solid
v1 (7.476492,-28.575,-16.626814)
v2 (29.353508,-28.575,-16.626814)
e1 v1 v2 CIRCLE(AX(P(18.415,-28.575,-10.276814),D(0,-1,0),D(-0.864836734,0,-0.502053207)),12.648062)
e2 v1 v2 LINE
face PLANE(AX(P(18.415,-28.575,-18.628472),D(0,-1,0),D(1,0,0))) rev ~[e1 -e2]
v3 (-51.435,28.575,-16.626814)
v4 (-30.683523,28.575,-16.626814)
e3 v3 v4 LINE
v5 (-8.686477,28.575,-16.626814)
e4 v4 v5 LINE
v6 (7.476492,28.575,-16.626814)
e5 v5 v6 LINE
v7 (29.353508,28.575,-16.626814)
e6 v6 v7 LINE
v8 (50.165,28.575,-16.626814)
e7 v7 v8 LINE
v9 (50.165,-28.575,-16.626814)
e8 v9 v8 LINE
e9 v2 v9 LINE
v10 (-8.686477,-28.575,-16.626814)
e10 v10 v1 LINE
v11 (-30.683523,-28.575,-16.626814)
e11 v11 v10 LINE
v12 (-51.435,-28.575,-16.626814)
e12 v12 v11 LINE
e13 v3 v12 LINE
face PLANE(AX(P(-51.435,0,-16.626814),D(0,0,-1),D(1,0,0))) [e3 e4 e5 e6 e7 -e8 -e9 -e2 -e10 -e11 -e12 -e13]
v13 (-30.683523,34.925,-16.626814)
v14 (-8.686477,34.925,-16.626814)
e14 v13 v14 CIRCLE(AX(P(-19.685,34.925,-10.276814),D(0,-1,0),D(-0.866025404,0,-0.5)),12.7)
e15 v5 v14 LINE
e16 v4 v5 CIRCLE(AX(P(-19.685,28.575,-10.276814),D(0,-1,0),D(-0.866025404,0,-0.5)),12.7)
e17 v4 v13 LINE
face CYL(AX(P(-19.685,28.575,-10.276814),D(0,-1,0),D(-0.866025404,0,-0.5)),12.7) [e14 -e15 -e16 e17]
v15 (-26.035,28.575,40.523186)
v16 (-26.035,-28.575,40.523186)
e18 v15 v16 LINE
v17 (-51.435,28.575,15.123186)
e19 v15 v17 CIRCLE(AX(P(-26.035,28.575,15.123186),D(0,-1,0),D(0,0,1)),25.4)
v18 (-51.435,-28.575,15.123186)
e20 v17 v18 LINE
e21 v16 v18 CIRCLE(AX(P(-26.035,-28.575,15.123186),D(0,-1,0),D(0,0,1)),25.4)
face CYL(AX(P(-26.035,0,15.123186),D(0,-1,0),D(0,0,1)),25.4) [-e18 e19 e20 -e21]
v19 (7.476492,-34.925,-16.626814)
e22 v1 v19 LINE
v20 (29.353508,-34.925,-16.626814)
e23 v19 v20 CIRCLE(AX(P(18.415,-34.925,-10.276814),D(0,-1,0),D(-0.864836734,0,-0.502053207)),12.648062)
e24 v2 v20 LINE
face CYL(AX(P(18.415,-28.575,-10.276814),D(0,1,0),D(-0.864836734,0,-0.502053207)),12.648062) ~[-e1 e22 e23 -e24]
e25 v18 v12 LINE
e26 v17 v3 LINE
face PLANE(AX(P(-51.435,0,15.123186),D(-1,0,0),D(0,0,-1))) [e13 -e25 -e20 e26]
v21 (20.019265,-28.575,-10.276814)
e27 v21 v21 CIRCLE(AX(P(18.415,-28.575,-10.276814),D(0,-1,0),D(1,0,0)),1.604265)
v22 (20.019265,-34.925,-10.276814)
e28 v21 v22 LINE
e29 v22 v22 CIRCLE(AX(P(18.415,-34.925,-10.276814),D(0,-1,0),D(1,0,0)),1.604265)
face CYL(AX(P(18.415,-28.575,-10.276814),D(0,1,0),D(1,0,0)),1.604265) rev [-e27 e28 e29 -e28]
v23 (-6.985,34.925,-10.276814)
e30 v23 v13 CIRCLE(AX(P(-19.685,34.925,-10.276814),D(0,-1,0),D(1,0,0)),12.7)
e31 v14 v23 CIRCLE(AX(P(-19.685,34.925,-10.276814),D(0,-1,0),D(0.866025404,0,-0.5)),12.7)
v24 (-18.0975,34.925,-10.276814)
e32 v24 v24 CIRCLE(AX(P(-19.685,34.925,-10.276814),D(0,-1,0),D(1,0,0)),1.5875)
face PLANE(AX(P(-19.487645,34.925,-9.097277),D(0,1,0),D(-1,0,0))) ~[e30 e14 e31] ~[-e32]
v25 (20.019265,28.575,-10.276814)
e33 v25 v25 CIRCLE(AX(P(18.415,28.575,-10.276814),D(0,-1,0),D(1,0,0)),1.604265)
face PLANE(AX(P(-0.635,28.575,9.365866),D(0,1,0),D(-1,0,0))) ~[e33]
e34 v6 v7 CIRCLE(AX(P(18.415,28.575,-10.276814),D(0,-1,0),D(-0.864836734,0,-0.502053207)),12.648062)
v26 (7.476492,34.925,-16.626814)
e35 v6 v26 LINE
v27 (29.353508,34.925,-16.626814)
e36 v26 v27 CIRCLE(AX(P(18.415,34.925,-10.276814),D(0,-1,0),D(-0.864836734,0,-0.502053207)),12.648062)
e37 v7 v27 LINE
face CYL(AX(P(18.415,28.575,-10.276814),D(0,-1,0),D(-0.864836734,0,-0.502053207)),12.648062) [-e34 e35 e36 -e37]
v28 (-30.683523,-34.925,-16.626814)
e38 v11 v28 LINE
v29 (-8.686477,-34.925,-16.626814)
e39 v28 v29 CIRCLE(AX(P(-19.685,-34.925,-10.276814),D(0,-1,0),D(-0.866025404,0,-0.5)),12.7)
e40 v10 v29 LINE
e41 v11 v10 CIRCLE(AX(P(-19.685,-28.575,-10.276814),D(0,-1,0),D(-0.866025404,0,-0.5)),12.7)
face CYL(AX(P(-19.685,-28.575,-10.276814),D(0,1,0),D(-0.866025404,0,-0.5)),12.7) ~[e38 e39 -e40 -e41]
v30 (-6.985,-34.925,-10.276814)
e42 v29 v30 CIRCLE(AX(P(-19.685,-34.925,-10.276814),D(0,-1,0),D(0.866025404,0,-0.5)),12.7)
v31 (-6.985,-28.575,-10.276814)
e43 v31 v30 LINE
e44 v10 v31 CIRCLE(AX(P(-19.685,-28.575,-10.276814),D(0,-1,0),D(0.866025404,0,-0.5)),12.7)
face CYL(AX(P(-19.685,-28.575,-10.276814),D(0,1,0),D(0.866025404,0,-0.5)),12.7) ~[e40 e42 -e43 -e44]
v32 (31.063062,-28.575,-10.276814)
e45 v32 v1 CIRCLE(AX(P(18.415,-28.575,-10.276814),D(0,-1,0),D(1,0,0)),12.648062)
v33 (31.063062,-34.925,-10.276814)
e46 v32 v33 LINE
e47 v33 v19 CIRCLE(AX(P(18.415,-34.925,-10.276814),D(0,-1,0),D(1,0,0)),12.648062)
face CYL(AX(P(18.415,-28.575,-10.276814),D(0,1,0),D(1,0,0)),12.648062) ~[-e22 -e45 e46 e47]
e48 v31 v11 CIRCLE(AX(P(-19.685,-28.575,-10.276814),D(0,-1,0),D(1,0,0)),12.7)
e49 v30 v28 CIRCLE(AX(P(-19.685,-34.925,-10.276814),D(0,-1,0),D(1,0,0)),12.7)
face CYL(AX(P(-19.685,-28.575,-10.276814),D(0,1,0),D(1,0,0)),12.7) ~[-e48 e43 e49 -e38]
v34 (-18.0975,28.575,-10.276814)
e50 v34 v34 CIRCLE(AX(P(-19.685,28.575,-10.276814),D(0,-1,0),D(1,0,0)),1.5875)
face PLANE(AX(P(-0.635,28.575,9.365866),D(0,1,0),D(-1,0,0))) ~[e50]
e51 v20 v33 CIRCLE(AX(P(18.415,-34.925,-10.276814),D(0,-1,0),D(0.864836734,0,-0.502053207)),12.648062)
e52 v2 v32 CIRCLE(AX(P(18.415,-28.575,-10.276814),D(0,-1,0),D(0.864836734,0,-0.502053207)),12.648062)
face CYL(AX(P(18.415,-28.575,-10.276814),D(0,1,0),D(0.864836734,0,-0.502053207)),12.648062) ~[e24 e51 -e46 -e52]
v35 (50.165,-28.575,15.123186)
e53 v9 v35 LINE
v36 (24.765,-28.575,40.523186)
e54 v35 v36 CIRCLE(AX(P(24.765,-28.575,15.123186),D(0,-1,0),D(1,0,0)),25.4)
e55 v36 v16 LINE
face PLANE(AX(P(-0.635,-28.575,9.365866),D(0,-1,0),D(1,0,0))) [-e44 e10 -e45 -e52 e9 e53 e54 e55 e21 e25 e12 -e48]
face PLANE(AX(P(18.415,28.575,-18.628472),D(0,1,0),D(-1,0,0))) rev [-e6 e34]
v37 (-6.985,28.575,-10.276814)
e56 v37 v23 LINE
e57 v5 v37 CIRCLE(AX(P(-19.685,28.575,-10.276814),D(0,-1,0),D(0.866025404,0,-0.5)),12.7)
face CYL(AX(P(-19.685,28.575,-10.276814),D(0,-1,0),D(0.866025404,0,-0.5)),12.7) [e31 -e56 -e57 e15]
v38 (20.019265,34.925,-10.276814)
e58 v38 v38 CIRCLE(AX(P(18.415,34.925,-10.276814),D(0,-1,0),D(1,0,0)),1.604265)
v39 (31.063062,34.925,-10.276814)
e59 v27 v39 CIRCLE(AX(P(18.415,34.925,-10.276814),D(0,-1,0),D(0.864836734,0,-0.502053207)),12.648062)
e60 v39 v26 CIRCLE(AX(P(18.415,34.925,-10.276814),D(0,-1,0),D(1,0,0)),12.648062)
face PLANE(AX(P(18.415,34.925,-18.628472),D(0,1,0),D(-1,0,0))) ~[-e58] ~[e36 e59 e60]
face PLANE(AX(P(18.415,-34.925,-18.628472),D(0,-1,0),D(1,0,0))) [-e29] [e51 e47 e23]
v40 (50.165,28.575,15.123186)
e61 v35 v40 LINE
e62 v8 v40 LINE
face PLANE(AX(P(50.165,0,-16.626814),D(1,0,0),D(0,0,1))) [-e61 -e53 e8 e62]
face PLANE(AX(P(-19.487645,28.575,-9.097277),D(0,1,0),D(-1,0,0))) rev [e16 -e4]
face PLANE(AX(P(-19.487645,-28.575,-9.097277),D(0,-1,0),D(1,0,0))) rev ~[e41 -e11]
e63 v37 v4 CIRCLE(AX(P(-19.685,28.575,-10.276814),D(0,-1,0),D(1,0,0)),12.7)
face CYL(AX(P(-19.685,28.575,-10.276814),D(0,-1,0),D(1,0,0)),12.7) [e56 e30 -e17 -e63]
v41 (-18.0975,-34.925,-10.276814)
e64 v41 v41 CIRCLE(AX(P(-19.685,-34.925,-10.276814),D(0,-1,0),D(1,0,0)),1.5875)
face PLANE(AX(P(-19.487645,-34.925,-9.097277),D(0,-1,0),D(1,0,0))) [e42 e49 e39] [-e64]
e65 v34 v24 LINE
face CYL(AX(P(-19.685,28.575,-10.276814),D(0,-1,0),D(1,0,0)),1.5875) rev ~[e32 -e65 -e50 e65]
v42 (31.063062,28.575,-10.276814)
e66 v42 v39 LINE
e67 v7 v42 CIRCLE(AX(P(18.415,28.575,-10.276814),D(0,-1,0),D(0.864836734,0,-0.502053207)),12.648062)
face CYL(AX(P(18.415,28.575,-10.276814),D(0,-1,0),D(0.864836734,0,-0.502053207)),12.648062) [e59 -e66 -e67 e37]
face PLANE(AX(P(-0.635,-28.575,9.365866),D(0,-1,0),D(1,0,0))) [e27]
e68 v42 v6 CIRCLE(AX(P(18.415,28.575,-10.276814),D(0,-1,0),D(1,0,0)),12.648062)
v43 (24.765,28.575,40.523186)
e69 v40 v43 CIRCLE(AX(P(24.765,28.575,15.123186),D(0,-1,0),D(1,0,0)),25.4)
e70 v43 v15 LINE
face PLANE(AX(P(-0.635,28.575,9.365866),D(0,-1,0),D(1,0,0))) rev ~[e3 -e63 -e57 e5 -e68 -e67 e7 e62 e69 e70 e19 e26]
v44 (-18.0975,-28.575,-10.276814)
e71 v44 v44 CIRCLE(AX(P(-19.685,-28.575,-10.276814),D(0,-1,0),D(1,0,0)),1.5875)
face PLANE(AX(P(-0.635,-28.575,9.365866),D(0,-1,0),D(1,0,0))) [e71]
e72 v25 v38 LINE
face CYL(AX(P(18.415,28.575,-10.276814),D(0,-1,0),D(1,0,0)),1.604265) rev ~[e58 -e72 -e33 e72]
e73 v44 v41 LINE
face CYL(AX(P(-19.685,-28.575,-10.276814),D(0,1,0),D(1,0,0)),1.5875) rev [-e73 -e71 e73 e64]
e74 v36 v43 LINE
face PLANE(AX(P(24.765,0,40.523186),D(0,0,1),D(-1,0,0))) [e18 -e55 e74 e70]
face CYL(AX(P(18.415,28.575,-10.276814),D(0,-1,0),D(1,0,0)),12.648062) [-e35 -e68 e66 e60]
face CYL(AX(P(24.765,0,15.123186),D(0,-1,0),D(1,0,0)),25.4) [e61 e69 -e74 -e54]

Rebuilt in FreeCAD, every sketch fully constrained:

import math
import FreeCAD as App
import Part
import Sketcher
from FreeCAD import Vector
Q = App.Units.Quantity

doc = App.newDocument("Part")
params = doc.addObject("Spreadsheet::Sheet", "Params")
for row, (alias, value) in enumerate([
    ("sketch1_radius", "1 in"),
    ("sketch1_width", "2 in"),
    ("sketch1_height", "1.25 in"),
    ("pad1_length", "2.25 in"),
    ("sketch2_radius", "0.5 in"),
    ("sketch2_diameter", "0.125 in"),
    ("pad2_length", "0.25 in"),
], start=1):
    params.set(f"A{row}", alias)
    params.set(f"B{row}", "=" + value)
    params.setAlias(f"B{row}", alias)

body = doc.addObject("PartDesign::Body", "Body")

# Sketch on XZ plane
sketch1 = doc.addObject("Sketcher::SketchObject", "Sketch")
body.addObject(sketch1)
sketch1.AttachmentSupport = (doc.XZ_Plane, [""])
sketch1.MapMode = "FlatFace"
sketch1.addGeometry([
    Part.LineSegment(Vector(25, 41, 0), Vector(-26, 41, 0)),  # 0
    Part.ArcOfCircle(Part.Circle(Vector(-26, 15, 0), Vector(0, 0, 1), 25), math.radians(90), math.radians(180)),  # 1
    Part.LineSegment(Vector(-51, 15, 0), Vector(-51, -17, 0)),  # 2
    Part.LineSegment(Vector(-51, -17, 0), Vector(50, -17, 0)),  # 3
    Part.LineSegment(Vector(50, -17, 0), Vector(50, 15, 0)),  # 4
    Part.ArcOfCircle(Part.Circle(Vector(25, 15, 0), Vector(0, 0, 1), 25), math.radians(0), math.radians(90)),  # 5
], False)
sketch1.addConstraint([
    Sketcher.Constraint("Tangent", 0, 2, 1, 1),
    Sketcher.Constraint("Tangent", 1, 2, 2, 1),
    Sketcher.Constraint("Coincident", 2, 2, 3, 1),
    Sketcher.Constraint("Coincident", 3, 2, 4, 1),
    Sketcher.Constraint("Tangent", 4, 2, 5, 1),
    Sketcher.Constraint("Tangent", 5, 2, 0, 1),
    Sketcher.Constraint("Horizontal", 0),
    Sketcher.Constraint("Vertical", 2),
    Sketcher.Constraint("Horizontal", 3),
    Sketcher.Constraint("Vertical", 4),
    Sketcher.Constraint("Equal", 1, 5),
    Sketcher.Constraint("Radius", 1, Q("1 in")),
    Sketcher.Constraint("DistanceX", 0, 2, 0, 1, Q("2 in")),
    Sketcher.Constraint("DistanceY", 2, 2, 2, 1, Q("1.25 in")),
    Sketcher.Constraint("DistanceX", 1, 3, -1, 1, Q("1.025 in")),
    Sketcher.Constraint("DistanceY", -1, 1, 1, 3, Q("15.123186 mm")),
])
sketch1.setExpression("Constraints[11]", "Params.sketch1_radius")
sketch1.setExpression("Constraints[12]", "Params.sketch1_width")
sketch1.setExpression("Constraints[13]", "Params.sketch1_height")
pad1 = doc.addObject("PartDesign::Pad", "Pad")
body.addObject(pad1)
pad1.Profile = sketch1
pad1.setExpression("Length", "Params.pad1_length")
pad1.Midplane = True

# Sketch on XZ plane
sketch2 = doc.addObject("Sketcher::SketchObject", "Sketch001")
body.addObject(sketch2)
sketch2.AttachmentSupport = (doc.XZ_Plane, [""])
sketch2.MapMode = "FlatFace"
sketch2.AttachmentOffset = App.Placement(Vector(0, 0, 1.125 * 25.4), App.Rotation())
sketch2.addGeometry([
    Part.ArcOfCircle(Part.Circle(Vector(-19.7, -10.3, 0), Vector(0, 0, 1), 12.7), math.radians(-30), math.radians(0)),  # 0
    Part.ArcOfCircle(Part.Circle(Vector(-19.7, -10.3, 0), Vector(0, 0, 1), 12.7), math.radians(0), math.radians(210)),  # 1
    Part.ArcOfCircle(Part.Circle(Vector(-19.7, -10.3, 0), Vector(0, 0, 1), 12.7), math.radians(-150), math.radians(-30)),  # 2
    Part.Circle(Vector(-19.7, -10.3, 0), Vector(0, 0, 1), 1.6),  # 3
    Part.ArcOfCircle(Part.Circle(Vector(18.4, -10.3, 0), Vector(0, 0, 1), 12.6), math.radians(-150), math.radians(-30)),  # 4
    Part.ArcOfCircle(Part.Circle(Vector(18.4, -10.3, 0), Vector(0, 0, 1), 12.6), math.radians(-30), math.radians(0)),  # 5
    Part.ArcOfCircle(Part.Circle(Vector(18.4, -10.3, 0), Vector(0, 0, 1), 12.6), math.radians(0), math.radians(210)),  # 6
    Part.Circle(Vector(18.4, -10.3, 0), Vector(0, 0, 1), 1.6),  # 7
], False)
sketch2.addConstraint([
    Sketcher.Constraint("Tangent", 0, 2, 1, 1),
    Sketcher.Constraint("Tangent", 1, 2, 2, 1),
    Sketcher.Constraint("Tangent", 2, 2, 0, 1),
    Sketcher.Constraint("Tangent", 4, 2, 5, 1),
    Sketcher.Constraint("Tangent", 5, 2, 6, 1),
    Sketcher.Constraint("Tangent", 6, 2, 4, 1),
    Sketcher.Constraint("Coincident", 3, 3, 0, 3),
    Sketcher.Constraint("Coincident", 7, 3, 4, 3),
    Sketcher.Constraint("Horizontal", 3, 3, 4, 3),
    Sketcher.Constraint("Horizontal", 7, 3, 0, 2),
    Sketcher.Constraint("Horizontal", 1, 2, 2, 2),
    Sketcher.Constraint("Horizontal", 2, 2, 4, 2),
    Sketcher.Constraint("Horizontal", 0, 2, 5, 2),
    Sketcher.Constraint("Horizontal", 4, 2, 6, 2),
    Sketcher.Constraint("Radius", 0, Q("0.5 in")),
    Sketcher.Constraint("Diameter", 3, Q("0.125 in")),
    Sketcher.Constraint("DistanceX", 0, 2, 4, 3, Q("1 in")),
    Sketcher.Constraint("DistanceY", 1, 2, 0, 3, Q("0.25 in")),
    Sketcher.Constraint("Diameter", 7, Q("3.208531 mm")),
    Sketcher.Constraint("DistanceX", 0, 3, -1, 1, Q("0.775 in")),
    Sketcher.Constraint("Radius", 4, Q("12.648062 mm")),
    Sketcher.Constraint("DistanceY", 0, 3, -1, 1, Q("10.276814 mm")),
])
sketch2.setExpression("Constraints[14]", "Params.sketch2_radius")
sketch2.setExpression("Constraints[15]", "Params.sketch2_diameter")
pad2 = doc.addObject("PartDesign::Pad", "Pad001")
body.addObject(pad2)
pad2.Profile = sketch2
pad2.setExpression("Length", "Params.pad2_length")
body2 = doc.addObject("PartDesign::Body", "Body001")
doc.recompute()

body2.BaseFeature = body
doc.recompute()

mirroring = doc.addObject("Part::Mirroring", "Mirroring")
mirroring.Source = body
mirroring.Base = Vector(0, 0, 0)
mirroring.Normal = Vector(0, -1, 0)
body3 = doc.addObject("PartDesign::Body", "Body002")
body3.BaseFeature = mirroring
boolean = doc.addObject("PartDesign::Boolean", "Boolean")
body2.addObject(boolean)
boolean.Type = "Fuse"
boolean.addObjects([body3])
doc.recompute()
mirroring.Visibility = False

doc.recompute()
